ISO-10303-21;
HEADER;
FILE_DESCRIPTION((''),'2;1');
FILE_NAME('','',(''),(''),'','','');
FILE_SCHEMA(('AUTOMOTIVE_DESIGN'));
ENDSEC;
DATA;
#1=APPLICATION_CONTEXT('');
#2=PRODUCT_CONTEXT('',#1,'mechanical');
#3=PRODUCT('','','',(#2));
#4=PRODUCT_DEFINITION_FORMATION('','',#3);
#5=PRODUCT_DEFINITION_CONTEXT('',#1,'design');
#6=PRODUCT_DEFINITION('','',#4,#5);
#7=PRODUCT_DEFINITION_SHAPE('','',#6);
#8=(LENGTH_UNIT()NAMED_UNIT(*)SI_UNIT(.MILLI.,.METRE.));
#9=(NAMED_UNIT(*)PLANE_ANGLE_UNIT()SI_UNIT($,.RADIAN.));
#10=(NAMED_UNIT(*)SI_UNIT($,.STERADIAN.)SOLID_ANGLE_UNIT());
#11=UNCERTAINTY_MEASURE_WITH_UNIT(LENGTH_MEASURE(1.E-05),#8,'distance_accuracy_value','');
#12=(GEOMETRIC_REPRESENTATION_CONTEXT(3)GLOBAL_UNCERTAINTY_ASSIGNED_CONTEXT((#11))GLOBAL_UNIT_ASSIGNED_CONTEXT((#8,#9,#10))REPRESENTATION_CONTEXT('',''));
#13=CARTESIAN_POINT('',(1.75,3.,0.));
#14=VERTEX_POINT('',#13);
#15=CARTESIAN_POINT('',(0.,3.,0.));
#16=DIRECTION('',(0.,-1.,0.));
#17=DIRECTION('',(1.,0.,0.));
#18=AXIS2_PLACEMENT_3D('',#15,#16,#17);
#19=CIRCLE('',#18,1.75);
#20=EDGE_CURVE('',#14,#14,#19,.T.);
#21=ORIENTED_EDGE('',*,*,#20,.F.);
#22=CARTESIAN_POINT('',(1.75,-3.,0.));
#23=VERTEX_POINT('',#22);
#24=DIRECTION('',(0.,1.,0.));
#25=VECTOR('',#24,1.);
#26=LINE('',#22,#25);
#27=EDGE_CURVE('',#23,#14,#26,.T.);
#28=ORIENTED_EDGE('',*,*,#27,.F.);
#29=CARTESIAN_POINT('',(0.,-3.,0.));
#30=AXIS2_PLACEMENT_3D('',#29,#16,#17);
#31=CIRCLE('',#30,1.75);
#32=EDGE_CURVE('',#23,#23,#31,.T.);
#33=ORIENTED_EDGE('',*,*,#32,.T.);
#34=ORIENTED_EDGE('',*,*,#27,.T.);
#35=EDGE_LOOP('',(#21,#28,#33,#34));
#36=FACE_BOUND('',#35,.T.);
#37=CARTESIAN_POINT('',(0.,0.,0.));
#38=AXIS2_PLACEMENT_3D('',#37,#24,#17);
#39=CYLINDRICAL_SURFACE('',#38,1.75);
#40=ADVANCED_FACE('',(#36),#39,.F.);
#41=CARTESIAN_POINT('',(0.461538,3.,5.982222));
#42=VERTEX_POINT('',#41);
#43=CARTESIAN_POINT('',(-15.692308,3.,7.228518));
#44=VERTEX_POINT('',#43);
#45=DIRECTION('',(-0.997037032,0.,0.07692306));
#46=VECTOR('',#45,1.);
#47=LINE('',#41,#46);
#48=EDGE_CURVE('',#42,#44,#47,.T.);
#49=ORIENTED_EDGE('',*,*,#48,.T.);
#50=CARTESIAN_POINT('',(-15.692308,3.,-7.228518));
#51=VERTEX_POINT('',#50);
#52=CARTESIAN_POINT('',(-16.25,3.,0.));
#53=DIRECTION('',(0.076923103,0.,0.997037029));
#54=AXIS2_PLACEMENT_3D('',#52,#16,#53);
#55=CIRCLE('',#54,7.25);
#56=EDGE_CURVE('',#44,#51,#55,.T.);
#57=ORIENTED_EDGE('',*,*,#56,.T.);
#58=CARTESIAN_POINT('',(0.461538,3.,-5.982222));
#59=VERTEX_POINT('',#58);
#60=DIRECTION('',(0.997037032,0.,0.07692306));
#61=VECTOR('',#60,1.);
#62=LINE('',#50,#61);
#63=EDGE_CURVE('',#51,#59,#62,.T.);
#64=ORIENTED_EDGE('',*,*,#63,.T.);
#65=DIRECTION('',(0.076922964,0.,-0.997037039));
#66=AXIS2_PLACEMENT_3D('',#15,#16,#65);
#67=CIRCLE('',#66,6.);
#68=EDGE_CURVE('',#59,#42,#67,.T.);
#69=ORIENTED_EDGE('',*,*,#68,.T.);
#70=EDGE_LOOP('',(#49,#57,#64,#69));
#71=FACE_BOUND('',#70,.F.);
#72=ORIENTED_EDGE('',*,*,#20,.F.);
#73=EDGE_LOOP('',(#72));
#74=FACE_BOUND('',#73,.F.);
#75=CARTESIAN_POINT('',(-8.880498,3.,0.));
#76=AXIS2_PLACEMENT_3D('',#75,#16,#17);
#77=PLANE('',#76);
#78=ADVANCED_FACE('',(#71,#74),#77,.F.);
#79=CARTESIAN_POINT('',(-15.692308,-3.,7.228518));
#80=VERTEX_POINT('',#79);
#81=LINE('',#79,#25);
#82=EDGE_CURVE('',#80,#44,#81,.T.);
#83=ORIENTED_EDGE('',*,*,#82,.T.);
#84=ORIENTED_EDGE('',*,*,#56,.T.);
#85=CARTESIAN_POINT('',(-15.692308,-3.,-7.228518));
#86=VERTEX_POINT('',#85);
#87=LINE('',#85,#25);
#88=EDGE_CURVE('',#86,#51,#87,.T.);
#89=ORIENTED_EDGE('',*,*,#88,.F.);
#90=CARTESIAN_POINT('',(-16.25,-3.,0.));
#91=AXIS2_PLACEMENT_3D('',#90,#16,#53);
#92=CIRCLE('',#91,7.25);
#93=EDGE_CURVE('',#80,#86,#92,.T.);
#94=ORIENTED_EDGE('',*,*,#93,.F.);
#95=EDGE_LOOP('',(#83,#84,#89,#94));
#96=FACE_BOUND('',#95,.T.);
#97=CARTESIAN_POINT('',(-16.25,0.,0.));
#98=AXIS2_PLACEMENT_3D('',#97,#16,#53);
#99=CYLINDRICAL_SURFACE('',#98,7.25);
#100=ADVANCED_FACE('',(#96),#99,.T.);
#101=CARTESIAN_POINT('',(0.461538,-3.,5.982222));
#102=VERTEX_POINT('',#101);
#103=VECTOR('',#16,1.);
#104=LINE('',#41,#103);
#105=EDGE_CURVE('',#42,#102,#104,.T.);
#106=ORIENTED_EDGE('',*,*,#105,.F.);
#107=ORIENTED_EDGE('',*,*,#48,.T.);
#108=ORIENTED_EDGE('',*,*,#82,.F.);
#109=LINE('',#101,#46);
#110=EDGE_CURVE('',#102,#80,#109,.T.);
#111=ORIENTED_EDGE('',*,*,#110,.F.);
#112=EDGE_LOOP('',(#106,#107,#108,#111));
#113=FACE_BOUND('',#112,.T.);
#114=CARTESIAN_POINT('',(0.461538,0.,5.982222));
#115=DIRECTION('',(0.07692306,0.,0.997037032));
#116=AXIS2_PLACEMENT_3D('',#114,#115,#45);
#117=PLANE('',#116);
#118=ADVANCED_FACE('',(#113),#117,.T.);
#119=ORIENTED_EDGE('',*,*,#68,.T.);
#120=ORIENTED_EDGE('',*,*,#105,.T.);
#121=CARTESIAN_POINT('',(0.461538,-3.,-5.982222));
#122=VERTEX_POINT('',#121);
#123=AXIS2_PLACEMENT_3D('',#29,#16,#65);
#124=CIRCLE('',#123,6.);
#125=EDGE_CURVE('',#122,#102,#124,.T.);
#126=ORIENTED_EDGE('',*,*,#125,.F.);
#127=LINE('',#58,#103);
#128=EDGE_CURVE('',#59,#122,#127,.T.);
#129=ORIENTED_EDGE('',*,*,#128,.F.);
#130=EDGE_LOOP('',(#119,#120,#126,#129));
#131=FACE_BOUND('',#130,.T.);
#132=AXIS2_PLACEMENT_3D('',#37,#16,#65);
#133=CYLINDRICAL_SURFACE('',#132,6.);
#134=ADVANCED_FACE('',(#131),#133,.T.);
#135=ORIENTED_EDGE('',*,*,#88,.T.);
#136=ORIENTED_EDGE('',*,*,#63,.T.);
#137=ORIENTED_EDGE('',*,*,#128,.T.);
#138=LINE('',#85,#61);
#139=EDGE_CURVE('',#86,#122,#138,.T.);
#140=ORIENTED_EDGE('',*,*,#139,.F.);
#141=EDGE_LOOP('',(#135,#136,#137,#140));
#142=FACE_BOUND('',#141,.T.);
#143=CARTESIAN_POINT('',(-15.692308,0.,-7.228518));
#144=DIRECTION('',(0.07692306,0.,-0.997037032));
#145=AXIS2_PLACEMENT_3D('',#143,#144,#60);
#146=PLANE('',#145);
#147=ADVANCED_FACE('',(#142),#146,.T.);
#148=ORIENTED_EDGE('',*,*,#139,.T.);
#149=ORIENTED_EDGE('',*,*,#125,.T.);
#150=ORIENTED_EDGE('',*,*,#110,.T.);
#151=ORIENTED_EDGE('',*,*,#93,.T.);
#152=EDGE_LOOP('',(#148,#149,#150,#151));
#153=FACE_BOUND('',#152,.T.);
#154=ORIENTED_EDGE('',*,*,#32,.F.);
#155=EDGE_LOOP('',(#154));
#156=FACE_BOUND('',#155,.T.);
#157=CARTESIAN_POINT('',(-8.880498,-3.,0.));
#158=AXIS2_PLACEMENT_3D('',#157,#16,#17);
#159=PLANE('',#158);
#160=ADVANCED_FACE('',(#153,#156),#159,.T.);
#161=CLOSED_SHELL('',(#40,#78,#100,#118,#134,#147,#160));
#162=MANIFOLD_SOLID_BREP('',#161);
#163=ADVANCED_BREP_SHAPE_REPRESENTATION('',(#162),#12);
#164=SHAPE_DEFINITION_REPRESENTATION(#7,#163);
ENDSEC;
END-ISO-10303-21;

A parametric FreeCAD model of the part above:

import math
import FreeCAD as App
import Part
import Sketcher
from FreeCAD import Vector
Q = App.Units.Quantity

doc = App.newDocument("Part")
body = doc.addObject("PartDesign::Body", "Body")

sketch1 = body.newObject("Sketcher::SketchObject", "Sketch")
sketch1.AttachmentSupport = (doc.getObject("XZ_Plane"), [""])
sketch1.MapMode = "FlatFace"
sketch1.addGeometry(Part.LineSegment(Vector(-15.7, -7.2, 0), Vector(0.5, -6, 0)), False)
sketch1.addGeometry(Part.ArcOfCircle(Part.Circle(Vector(0, 0, 0), Vector(0, 0, 1), 6), math.radians(-86), math.radians(86)), False)
sketch1.addGeometry(Part.LineSegment(Vector(0.5, 6, 0), Vector(-15.7, 7.2, 0)), False)
sketch1.addGeometry(Part.ArcOfCircle(Part.Circle(Vector(-16.3, 0, 0), Vector(0, 0, 1), 7.2), math.radians(86), math.radians(274)), False)
sketch1.addGeometry(Part.Circle(Vector(0, 0, 0), Vector(0, 0, 1), 1.8), False)
sketch1.addConstraint(Sketcher.Constraint("Tangent", 0, 2, 1, 1))
sketch1.addConstraint(Sketcher.Constraint("Tangent", 1, 2, 2, 1))
sketch1.addConstraint(Sketcher.Constraint("Tangent", 2, 2, 3, 1))
sketch1.addConstraint(Sketcher.Constraint("Tangent", 3, 2, 0, 1))
sketch1.addConstraint(Sketcher.Constraint("Coincident", 1, 3, -1, 1))
sketch1.addConstraint(Sketcher.Constraint("Coincident", 4, 3, -1, 1))
sketch1.addConstraint(Sketcher.Constraint("PointOnObject", 3, 3, -1))
sketch1.addConstraint(Sketcher.Constraint("Radius", 1, Q("6 mm")))
sketch1.addConstraint(Sketcher.Constraint("Diameter", 4, Q("3.5 mm")))
sketch1.addConstraint(Sketcher.Constraint("Radius", 3, Q("7.25 mm")))
sketch1.addConstraint(Sketcher.Constraint("DistanceX", 3, 3, -1, 1, Q("16.25 mm")))
pad1 = body.newObject("PartDesign::Pad", "Pad")
pad1.Profile = sketch1
pad1.Length = 6
pad1.Midplane = True

doc.recompute()
